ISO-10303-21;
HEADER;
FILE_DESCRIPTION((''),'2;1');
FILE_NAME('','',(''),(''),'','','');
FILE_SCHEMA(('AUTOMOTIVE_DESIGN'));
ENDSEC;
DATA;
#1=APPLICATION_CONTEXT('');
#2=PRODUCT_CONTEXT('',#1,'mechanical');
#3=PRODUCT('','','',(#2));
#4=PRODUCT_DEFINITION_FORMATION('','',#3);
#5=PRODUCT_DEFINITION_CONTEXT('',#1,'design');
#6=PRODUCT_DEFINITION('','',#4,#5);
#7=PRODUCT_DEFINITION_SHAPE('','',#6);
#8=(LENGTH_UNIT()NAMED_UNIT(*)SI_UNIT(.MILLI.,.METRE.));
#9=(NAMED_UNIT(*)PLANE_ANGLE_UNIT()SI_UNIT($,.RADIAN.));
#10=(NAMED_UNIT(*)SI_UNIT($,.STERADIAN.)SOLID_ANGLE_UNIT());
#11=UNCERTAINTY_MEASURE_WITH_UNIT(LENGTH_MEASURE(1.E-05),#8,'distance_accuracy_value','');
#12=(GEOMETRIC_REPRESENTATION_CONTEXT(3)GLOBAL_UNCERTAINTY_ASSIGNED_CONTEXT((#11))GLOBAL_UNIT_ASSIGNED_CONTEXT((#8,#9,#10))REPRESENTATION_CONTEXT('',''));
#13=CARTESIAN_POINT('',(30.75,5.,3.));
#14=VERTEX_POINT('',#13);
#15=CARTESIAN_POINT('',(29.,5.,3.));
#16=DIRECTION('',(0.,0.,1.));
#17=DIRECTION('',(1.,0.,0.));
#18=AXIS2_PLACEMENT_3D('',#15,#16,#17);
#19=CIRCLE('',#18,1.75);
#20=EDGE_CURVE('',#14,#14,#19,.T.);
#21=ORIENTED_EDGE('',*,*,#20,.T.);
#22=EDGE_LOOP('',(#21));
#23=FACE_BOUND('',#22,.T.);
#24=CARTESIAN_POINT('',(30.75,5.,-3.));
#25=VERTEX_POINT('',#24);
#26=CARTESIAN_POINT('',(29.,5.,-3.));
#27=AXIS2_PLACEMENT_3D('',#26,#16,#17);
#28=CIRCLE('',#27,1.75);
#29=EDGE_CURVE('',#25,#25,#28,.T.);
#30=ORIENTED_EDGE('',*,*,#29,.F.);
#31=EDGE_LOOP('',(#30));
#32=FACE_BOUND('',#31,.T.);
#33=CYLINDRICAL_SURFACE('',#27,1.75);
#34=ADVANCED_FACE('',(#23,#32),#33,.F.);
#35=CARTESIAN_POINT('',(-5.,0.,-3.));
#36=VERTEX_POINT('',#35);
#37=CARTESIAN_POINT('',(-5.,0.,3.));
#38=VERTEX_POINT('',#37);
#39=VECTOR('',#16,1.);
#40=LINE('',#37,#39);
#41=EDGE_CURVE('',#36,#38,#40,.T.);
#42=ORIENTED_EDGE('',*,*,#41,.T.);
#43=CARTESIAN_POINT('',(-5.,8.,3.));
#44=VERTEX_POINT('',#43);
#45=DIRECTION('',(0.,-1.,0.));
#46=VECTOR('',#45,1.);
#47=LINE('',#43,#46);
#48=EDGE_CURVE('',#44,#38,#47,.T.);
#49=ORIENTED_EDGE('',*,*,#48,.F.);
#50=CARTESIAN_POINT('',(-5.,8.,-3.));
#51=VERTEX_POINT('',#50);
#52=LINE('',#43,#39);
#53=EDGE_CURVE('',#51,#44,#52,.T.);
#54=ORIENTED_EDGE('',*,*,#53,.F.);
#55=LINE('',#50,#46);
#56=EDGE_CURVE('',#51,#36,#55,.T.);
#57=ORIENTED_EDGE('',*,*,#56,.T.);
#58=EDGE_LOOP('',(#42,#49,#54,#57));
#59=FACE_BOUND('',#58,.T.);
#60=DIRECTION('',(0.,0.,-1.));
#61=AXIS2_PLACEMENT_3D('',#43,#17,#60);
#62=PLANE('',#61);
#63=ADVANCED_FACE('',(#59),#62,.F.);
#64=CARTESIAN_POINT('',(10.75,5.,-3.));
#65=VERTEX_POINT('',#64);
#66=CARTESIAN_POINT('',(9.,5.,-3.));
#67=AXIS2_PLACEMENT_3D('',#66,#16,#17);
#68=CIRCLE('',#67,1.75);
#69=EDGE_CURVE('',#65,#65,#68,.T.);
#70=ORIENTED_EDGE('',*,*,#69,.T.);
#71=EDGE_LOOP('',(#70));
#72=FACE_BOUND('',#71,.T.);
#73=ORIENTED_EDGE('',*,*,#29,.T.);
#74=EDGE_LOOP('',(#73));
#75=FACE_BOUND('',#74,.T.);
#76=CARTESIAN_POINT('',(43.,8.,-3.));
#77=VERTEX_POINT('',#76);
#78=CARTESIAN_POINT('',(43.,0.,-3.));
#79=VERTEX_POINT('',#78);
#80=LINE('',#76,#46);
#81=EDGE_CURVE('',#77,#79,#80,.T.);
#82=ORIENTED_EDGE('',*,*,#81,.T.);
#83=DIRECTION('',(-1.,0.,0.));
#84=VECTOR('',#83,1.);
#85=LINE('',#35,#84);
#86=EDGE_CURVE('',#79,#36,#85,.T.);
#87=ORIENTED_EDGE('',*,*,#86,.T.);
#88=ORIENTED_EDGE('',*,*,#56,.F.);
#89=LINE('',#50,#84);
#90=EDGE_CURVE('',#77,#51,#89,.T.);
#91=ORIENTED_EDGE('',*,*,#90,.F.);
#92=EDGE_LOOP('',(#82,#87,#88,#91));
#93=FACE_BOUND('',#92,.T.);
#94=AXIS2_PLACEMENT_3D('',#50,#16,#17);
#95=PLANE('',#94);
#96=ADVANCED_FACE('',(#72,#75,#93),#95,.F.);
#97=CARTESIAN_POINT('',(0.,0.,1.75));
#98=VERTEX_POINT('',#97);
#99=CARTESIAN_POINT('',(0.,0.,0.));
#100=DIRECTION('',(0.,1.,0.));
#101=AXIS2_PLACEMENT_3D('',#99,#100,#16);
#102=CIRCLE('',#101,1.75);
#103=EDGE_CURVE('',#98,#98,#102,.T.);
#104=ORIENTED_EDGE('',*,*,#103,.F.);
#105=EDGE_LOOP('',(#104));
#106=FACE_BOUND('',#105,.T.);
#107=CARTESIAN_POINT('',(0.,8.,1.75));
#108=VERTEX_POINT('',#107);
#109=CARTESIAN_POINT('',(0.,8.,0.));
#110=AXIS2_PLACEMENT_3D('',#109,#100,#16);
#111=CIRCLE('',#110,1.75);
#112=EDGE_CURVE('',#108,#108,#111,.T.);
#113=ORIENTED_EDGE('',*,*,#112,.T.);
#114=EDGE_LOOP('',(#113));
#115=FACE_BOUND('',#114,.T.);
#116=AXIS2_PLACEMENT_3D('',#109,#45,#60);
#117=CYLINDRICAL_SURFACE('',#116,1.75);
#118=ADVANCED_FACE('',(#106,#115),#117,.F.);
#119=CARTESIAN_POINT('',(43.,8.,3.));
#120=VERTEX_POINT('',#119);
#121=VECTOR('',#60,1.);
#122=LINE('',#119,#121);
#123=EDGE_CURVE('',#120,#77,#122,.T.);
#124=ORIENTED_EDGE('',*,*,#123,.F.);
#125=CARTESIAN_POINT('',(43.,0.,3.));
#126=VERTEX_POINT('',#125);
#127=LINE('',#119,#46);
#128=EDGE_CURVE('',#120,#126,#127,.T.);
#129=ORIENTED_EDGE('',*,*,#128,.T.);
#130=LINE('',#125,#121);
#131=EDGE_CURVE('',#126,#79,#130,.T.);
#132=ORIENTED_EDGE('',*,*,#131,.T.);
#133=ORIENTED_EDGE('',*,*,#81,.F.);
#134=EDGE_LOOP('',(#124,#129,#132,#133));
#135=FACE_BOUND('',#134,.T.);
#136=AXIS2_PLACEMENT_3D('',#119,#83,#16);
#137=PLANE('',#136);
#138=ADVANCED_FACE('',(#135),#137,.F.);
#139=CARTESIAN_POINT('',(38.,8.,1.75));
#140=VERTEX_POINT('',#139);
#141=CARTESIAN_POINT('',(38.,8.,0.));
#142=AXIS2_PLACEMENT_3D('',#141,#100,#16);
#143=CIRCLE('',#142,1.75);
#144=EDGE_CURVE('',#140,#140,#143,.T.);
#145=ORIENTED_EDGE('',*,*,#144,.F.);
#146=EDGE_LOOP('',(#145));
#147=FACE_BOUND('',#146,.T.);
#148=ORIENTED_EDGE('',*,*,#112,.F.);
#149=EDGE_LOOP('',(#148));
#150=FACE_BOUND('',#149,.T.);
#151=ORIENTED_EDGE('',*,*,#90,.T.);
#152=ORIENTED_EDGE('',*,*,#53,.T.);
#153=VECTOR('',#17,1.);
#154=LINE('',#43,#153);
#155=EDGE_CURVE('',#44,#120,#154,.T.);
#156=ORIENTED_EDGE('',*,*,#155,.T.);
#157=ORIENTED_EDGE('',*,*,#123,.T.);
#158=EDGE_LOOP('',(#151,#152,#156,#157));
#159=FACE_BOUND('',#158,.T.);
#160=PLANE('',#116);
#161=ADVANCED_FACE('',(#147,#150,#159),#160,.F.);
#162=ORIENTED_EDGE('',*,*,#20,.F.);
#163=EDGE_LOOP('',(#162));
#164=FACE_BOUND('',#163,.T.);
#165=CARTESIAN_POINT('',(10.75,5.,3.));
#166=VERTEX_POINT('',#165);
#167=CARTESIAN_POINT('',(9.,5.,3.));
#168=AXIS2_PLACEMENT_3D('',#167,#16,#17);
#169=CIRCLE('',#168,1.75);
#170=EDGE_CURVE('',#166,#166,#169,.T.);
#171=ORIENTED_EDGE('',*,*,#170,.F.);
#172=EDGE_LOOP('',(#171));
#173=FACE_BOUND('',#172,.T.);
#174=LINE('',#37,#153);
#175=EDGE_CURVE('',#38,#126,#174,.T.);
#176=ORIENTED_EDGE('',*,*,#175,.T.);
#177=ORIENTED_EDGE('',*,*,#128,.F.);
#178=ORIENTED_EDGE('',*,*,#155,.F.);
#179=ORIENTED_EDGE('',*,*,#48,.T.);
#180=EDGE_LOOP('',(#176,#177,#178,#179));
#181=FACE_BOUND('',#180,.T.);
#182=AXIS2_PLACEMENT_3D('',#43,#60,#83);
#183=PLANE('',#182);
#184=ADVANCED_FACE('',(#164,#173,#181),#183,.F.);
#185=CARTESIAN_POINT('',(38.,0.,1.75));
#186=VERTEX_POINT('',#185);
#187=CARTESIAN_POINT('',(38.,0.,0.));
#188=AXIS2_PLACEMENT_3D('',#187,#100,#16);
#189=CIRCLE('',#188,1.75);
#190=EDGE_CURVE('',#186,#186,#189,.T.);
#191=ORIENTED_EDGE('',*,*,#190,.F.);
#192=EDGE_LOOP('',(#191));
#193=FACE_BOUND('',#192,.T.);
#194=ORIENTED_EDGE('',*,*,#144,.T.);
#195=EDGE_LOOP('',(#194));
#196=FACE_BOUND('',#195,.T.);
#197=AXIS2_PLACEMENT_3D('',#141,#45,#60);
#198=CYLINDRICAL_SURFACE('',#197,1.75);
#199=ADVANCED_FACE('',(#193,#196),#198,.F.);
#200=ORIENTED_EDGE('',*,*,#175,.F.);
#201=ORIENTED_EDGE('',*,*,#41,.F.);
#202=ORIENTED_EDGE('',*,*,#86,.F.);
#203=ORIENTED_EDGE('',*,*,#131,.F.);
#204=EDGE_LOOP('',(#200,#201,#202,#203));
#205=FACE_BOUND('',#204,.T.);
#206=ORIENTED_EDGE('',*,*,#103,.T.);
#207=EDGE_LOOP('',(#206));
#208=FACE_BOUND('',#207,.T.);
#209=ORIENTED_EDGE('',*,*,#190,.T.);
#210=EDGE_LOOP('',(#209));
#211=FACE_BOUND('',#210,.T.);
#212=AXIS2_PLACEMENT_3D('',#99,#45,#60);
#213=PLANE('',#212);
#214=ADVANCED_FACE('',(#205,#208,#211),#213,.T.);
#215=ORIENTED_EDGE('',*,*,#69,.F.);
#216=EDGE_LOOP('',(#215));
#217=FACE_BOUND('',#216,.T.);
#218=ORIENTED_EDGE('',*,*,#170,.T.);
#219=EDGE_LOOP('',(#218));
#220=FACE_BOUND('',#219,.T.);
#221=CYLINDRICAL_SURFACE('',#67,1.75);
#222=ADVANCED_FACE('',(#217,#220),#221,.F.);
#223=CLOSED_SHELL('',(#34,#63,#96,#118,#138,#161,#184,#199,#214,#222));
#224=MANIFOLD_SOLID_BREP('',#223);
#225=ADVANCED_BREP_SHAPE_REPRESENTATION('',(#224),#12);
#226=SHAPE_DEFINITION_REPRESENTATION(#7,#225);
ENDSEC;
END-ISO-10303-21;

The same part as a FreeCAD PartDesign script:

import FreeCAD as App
import Part
import Sketcher
from FreeCAD import Vector
Q = App.Units.Quantity

doc = App.newDocument("Part")
body = doc.addObject("PartDesign::Body", "Body")

# Sketch on XZ plane
sketch1 = body.newObject("Sketcher::SketchObject", "Sketch")
sketch1.AttachmentSupport = (doc.getObject("XZ_Plane"), [""])
sketch1.MapMode = "FlatFace"
sketch1.addGeometry(Part.LineSegment(Vector(-5, -3, 0), Vector(-5, 3, 0)), False)
sketch1.addGeometry(Part.LineSegment(Vector(-5, 3, 0), Vector(43, 3, 0)), False)
sketch1.addGeometry(Part.LineSegment(Vector(43, 3, 0), Vector(43, -3, 0)), False)
sketch1.addGeometry(Part.LineSegment(Vector(43, -3, 0), Vector(-5, -3, 0)), False)
sketch1.addGeometry(Part.Circle(Vector(0, 0, 0), Vector(0, 0, 1), 1.8), False)
sketch1.addGeometry(Part.Circle(Vector(38, 0, 0), Vector(0, 0, 1), 1.8), False)
sketch1.addConstraint(Sketcher.Constraint("Coincident", 0, 2, 1, 1))
sketch1.addConstraint(Sketcher.Constraint("Coincident", 1, 2, 2, 1))
sketch1.addConstraint(Sketcher.Constraint("Coincident", 2, 2, 3, 1))
sketch1.addConstraint(Sketcher.Constraint("Coincident", 3, 2, 0, 1))
sketch1.addConstraint(Sketcher.Constraint("Vertical", 0))
sketch1.addConstraint(Sketcher.Constraint("Horizontal", 1))
sketch1.addConstraint(Sketcher.Constraint("Vertical", 2))
sketch1.addConstraint(Sketcher.Constraint("Horizontal", 3))
sketch1.addConstraint(Sketcher.Constraint("Coincident", 4, 3, -1, 1))
sketch1.addConstraint(Sketcher.Constraint("Equal", 4, 5))
sketch1.addConstraint(Sketcher.Constraint("PointOnObject", 5, 3, -1))
sketch1.addConstraint(Sketcher.Constraint("Diameter", 4, Q("3.5 mm")))
sketch1.addConstraint(Sketcher.Constraint("DistanceX", 1, 1, 1, 2, Q("48 mm")))
sketch1.addConstraint(Sketcher.Constraint("DistanceY", 0, 1, 0, 2, Q("6 mm")))
sketch1.addConstraint(Sketcher.Constraint("DistanceX", -1, 1, 5, 3, Q("38 mm")))
sketch1.addConstraint(Sketcher.Constraint("DistanceX", 0, 2, -1, 1, Q("5 mm")))
sketch1.addConstraint(Sketcher.Constraint("DistanceY", -1, 1, 0, 2, Q("3 mm")))
pad1 = body.newObject("PartDesign::Pad", "Pad")
pad1.Profile = sketch1
pad1.Length = 8
pad1.Reversed = True

# Sketch on XY plane
sketch2 = body.newObject("Sketcher::SketchObject", "Sketch001")
sketch2.AttachmentSupport = (doc.getObject("XY_Plane"), [""])
sketch2.MapMode = "FlatFace"
sketch2.AttachmentOffset = App.Placement(Vector(0, 0, 3), App.Rotation())
sketch2.addGeometry(Part.Circle(Vector(9, 5, 0), Vector(0, 0, 1), 1.8), False)
sketch2.addGeometry(Part.Circle(Vector(29, 5, 0), Vector(0, 0, 1), 1.8), False)
sketch2.addConstraint(Sketcher.Constraint("Equal", 0, 1))
sketch2.addConstraint(Sketcher.Constraint("Horizontal", 0, 3, 1, 3))
sketch2.addConstraint(Sketcher.Constraint("Diameter", 0, Q("3.5 mm")))
sketch2.addConstraint(Sketcher.Constraint("DistanceX", -1, 1, 0, 3, Q("9 mm")))
sketch2.addConstraint(Sketcher.Constraint("DistanceY", -1, 1, 0, 3, Q("5 mm")))
sketch2.addConstraint(Sketcher.Constraint("DistanceX", -1, 1, 1, 3, Q("29 mm")))
pocket1 = body.newObject("PartDesign::Pocket", "Pocket")
pocket1.Profile = sketch2
pocket1.Type = "ThroughAll"

doc.recompute()
